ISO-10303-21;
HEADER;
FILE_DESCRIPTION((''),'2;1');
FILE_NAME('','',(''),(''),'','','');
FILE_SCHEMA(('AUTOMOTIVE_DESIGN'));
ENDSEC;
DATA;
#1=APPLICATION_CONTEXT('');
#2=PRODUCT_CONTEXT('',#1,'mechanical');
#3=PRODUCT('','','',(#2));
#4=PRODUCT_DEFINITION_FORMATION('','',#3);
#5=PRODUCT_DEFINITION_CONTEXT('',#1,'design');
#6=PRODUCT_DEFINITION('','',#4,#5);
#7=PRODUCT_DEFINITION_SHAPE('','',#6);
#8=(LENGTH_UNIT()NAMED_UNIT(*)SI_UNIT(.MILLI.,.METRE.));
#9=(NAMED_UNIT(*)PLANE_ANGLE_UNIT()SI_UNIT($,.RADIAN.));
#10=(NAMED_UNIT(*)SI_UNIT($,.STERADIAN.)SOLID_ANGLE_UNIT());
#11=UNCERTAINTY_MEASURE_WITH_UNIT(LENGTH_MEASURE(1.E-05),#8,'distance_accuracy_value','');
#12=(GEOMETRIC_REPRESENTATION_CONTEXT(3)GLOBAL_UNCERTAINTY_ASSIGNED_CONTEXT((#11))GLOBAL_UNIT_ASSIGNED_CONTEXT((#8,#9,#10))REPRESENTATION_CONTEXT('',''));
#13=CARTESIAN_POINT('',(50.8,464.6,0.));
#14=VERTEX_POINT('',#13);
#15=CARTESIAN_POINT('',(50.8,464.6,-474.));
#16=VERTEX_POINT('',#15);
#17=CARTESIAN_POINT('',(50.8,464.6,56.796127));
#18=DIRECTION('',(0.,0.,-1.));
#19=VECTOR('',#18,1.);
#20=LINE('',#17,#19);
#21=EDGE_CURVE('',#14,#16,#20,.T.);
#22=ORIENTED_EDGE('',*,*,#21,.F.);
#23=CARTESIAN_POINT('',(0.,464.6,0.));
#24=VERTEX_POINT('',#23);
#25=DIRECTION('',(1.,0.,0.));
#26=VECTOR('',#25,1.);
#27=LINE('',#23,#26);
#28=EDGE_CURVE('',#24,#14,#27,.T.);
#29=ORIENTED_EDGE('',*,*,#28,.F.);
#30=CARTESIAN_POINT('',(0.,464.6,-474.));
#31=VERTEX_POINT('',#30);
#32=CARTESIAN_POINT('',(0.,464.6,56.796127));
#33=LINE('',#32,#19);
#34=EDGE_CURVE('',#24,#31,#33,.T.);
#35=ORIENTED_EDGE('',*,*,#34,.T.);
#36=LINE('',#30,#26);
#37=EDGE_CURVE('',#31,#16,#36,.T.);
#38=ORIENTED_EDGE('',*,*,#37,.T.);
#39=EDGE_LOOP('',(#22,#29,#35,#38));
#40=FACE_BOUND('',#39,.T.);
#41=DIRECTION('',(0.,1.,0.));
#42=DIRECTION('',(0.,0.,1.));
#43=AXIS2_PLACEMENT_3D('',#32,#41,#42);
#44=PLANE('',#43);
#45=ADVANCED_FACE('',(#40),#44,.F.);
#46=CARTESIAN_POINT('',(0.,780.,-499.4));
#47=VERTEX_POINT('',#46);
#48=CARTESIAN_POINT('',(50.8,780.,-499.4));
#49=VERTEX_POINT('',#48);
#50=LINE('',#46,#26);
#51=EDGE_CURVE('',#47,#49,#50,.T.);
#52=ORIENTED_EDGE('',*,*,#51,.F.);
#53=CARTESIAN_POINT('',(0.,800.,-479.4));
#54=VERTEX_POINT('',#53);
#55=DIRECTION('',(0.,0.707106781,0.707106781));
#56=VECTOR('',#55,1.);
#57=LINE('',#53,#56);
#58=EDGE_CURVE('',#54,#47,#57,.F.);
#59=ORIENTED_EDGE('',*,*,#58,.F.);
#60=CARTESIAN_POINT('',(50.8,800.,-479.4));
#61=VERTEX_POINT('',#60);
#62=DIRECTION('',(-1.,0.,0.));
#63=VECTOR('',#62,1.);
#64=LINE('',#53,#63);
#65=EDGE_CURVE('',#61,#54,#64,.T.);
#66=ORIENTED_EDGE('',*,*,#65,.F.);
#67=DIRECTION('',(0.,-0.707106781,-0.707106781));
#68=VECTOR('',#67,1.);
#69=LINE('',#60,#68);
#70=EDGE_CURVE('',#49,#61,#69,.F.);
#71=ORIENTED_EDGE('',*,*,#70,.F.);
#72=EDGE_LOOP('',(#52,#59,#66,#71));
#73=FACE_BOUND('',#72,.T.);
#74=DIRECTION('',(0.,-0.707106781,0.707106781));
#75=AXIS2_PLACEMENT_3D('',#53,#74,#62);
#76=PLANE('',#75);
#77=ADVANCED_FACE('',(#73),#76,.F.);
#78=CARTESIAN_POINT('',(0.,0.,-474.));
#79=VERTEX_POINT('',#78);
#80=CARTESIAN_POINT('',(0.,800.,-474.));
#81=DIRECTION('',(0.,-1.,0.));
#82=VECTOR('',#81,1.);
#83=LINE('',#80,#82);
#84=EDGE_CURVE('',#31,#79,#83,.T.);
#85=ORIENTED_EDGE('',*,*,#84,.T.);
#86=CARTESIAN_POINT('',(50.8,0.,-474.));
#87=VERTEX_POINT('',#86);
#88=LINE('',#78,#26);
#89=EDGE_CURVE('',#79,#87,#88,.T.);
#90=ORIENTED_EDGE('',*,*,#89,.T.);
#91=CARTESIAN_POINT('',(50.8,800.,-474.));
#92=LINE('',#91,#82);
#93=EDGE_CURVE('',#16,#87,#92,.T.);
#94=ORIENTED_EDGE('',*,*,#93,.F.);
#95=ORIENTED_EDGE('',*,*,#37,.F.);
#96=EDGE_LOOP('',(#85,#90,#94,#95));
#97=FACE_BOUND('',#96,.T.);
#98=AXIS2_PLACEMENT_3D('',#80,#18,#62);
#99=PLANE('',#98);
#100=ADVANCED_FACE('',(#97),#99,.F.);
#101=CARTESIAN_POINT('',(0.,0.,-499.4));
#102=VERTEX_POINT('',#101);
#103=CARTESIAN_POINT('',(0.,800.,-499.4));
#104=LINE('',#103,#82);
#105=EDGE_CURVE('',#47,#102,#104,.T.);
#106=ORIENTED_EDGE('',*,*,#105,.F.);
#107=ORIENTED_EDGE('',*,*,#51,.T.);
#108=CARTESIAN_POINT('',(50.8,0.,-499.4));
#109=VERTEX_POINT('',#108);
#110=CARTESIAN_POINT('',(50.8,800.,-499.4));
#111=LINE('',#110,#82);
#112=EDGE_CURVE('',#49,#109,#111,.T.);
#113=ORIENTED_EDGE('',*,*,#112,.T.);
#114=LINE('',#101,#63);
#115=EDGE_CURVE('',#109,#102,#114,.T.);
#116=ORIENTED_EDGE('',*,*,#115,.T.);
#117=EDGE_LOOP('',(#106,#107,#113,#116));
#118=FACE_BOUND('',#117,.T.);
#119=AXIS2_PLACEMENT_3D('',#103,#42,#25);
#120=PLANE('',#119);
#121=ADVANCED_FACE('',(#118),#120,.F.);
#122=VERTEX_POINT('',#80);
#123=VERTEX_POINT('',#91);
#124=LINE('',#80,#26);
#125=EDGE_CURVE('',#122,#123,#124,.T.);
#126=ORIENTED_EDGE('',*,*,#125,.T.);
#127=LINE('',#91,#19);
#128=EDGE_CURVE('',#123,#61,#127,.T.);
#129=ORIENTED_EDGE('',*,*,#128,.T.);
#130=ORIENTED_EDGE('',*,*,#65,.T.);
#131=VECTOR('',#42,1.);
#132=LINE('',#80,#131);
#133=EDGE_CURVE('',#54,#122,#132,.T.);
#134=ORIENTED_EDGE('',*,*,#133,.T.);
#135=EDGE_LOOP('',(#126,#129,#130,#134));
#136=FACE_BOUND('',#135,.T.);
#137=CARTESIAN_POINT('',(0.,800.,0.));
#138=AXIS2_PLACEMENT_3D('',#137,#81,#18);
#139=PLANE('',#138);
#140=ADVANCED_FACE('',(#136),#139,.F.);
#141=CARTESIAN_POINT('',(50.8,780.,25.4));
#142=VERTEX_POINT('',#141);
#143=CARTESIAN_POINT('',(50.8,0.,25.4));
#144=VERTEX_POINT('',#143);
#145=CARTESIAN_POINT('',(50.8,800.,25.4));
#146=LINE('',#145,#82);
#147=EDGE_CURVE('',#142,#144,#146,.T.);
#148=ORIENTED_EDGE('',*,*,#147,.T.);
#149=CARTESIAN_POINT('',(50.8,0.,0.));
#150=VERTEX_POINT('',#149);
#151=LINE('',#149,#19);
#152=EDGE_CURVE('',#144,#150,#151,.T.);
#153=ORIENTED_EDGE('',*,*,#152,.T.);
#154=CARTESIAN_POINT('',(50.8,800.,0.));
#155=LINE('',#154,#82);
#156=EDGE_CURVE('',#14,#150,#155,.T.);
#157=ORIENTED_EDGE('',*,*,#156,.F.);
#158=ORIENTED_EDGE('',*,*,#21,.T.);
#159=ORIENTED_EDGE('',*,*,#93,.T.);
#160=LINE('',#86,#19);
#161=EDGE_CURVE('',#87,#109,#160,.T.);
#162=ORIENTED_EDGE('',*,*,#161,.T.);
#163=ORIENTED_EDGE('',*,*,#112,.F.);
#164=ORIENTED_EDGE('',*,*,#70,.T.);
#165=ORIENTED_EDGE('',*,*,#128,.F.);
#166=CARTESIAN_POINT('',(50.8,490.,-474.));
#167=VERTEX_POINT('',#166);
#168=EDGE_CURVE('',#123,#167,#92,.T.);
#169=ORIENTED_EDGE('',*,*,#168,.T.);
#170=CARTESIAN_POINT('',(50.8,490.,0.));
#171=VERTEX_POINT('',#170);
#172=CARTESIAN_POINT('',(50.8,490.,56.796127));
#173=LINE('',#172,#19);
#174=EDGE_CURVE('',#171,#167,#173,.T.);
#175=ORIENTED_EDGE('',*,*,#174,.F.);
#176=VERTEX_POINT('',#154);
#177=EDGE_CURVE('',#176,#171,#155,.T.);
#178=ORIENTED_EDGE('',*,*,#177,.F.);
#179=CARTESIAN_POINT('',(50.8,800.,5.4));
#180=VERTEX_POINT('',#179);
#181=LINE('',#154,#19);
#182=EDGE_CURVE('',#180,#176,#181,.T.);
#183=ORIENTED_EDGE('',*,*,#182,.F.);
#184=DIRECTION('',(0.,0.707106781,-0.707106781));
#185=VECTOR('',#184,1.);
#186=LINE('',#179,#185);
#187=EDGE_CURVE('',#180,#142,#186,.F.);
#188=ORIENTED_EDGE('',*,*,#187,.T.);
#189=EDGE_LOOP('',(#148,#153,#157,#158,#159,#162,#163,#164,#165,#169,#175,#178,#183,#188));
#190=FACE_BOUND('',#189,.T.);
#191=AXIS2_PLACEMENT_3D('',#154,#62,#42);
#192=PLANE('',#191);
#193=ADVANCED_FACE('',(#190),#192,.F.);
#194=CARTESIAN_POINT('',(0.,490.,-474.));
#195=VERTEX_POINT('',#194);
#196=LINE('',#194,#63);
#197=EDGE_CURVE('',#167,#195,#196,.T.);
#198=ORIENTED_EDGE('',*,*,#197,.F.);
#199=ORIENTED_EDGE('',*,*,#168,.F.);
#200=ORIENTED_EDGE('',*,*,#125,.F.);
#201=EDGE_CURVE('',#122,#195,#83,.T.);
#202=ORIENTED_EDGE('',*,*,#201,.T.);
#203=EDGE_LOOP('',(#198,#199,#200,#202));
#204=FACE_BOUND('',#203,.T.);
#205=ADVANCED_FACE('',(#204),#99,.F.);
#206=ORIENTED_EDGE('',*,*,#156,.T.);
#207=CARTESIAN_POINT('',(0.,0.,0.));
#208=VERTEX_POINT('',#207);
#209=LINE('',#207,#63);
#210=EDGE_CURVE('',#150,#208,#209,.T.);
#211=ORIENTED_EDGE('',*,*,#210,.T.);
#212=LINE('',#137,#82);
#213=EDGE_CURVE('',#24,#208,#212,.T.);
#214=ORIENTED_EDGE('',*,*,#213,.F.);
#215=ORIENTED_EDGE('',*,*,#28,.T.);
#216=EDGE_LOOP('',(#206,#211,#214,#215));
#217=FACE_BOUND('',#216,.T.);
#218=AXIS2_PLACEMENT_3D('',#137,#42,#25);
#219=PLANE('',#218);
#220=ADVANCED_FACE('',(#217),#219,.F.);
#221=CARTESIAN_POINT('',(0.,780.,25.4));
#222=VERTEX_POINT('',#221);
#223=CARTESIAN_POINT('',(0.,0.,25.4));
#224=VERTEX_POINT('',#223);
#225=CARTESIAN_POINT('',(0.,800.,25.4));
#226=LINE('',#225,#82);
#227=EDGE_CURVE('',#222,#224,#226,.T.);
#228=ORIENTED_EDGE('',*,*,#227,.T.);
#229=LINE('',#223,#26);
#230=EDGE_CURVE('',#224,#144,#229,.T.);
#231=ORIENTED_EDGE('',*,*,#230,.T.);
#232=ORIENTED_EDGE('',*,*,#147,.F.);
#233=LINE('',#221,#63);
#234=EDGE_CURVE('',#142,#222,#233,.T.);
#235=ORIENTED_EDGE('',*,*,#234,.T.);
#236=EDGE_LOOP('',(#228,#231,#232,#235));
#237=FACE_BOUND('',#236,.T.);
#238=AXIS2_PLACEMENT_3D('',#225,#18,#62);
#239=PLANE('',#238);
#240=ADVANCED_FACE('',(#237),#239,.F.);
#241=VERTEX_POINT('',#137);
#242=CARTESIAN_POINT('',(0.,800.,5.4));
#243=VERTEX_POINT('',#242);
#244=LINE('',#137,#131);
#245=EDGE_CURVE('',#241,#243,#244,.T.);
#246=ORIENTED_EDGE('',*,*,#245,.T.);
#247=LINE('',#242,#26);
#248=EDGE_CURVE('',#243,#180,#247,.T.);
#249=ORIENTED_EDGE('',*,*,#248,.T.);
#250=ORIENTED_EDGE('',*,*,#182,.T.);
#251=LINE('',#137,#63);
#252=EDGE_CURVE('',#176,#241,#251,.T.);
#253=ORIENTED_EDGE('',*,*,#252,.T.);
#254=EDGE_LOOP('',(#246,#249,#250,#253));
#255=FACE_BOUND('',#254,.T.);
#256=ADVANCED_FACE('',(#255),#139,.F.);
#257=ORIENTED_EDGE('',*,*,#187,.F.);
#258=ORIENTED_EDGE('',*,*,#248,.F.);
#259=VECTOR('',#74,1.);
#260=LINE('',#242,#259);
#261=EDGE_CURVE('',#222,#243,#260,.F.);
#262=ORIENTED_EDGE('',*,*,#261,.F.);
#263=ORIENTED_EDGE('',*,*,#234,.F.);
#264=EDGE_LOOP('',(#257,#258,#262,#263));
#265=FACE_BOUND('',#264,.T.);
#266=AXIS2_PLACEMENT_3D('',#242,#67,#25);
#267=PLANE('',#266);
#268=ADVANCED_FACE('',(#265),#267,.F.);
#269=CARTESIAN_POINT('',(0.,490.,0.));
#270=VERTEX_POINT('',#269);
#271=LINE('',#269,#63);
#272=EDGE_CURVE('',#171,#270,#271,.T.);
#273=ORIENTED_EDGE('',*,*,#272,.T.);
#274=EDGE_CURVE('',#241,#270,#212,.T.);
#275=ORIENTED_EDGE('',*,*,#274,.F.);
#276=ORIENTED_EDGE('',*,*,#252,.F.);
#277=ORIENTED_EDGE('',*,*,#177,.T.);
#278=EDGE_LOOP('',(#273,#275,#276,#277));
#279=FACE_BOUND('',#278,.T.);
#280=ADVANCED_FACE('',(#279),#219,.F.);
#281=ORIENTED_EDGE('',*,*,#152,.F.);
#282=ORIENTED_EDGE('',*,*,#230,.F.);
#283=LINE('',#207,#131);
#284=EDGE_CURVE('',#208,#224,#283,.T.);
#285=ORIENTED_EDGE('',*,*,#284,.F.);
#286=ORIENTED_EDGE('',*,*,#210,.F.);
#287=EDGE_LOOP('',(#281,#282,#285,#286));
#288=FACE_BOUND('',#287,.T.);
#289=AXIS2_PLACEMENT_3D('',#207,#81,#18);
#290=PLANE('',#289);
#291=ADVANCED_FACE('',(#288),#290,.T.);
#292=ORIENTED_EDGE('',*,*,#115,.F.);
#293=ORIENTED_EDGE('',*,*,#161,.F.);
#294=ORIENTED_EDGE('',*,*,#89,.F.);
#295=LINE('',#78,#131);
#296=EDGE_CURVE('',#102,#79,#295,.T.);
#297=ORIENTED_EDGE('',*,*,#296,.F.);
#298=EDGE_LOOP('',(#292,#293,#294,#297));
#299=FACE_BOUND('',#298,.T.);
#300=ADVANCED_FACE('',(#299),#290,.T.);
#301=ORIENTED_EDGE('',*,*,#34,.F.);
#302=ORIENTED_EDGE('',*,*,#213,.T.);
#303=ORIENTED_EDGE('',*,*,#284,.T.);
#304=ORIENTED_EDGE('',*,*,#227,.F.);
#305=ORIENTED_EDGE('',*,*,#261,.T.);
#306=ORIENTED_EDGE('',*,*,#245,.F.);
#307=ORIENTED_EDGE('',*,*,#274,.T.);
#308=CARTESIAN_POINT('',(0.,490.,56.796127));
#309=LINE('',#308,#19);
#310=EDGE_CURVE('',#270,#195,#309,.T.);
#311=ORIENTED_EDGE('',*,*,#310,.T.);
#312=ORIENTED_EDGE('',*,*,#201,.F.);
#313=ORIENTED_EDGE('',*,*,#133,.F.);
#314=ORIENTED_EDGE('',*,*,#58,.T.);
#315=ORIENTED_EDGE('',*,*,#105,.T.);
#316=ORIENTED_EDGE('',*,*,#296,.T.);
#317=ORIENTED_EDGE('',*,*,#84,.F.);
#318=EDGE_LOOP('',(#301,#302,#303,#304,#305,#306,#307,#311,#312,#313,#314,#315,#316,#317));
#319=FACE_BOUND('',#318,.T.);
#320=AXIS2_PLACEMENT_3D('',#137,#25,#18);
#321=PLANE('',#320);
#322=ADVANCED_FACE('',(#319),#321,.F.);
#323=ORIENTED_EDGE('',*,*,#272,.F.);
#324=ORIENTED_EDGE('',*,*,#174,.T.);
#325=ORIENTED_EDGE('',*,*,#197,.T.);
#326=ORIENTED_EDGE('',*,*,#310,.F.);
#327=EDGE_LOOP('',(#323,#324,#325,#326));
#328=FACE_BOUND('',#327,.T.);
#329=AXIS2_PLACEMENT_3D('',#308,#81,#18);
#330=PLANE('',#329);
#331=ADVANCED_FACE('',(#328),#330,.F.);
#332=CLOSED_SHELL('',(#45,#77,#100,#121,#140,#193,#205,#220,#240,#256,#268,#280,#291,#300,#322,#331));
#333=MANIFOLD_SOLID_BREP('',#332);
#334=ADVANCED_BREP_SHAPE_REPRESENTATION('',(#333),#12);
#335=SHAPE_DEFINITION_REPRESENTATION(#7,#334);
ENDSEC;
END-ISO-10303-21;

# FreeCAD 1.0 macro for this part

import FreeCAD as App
import Part
import Sketcher
Q = App.Units.Quantity


def edges_at(feature, points):
    """Names of the edges that pass closest to the given points."""
    edges = feature.Shape.Edges
    near = lambda p: min(range(len(edges)), key=lambda i: edges[i].distToShape(Part.Vertex(*p))[0])
    return sorted({f"Edge{near(p) + 1}" for p in points})

doc = App.newDocument("Part")
body = doc.addObject("PartDesign::Body", "Body")

# Sketch on XZ plane
sketch1 = doc.addObject("Sketcher::SketchObject", "Sketch")
body.addObject(sketch1)
sketch1.AttachmentSupport = (doc.XZ_Plane, [""])
sketch1.MapMode = "FlatFace"
sketch1.addGeometry(Part.LineSegment(App.Vector(0, 0, 0), App.Vector(0, 25, 0)), False)
sketch1.addGeometry(Part.LineSegment(App.Vector(0, 25, 0), App.Vector(51, 25, 0)), False)
sketch1.addGeometry(Part.LineSegment(App.Vector(51, 25, 0), App.Vector(51, 0, 0)), False)
sketch1.addGeometry(Part.LineSegment(App.Vector(51, 0, 0), App.Vector(0, 0, 0)), False)
sketch1.addConstraint(Sketcher.Constraint("Coincident", 0, 2, 1, 1))
sketch1.addConstraint(Sketcher.Constraint("Coincident", 1, 2, 2, 1))
sketch1.addConstraint(Sketcher.Constraint("Coincident", 2, 2, 3, 1))
sketch1.addConstraint(Sketcher.Constraint("Coincident", 3, 2, 0, 1))
sketch1.addConstraint(Sketcher.Constraint("Vertical", 0))
sketch1.addConstraint(Sketcher.Constraint("Horizontal", 1))
sketch1.addConstraint(Sketcher.Constraint("Vertical", 2))
sketch1.addConstraint(Sketcher.Constraint("Horizontal", 3))
sketch1.addConstraint(Sketcher.Constraint("Coincident", 3, 2, -1, 1))
sketch1.addConstraint(Sketcher.Constraint("DistanceX", 1, 1, 1, 2, Q("50.8 mm")))
sketch1.addConstraint(Sketcher.Constraint("DistanceY", 0, 1, 0, 2, Q("25.4 mm")))
pad1 = doc.addObject("PartDesign::Pad", "Pad")
body.addObject(pad1)
pad1.Profile = sketch1
pad1.Length = 800
pad1.Reversed = True
body2 = doc.addObject("PartDesign::Body", "Body001")

# Sketch on XZ plane
sketch2 = doc.addObject("Sketcher::SketchObject", "Sketch001")
body2.addObject(sketch2)
sketch2.AttachmentSupport = (doc.getObject("XZ_Plane001"), [""])
sketch2.MapMode = "FlatFace"
sketch2.addGeometry(Part.LineSegment(App.Vector(0, -499, 0), App.Vector(0, -474, 0)), False)
sketch2.addGeometry(Part.LineSegment(App.Vector(0, -474, 0), App.Vector(51, -474, 0)), False)
sketch2.addGeometry(Part.LineSegment(App.Vector(51, -474, 0), App.Vector(51, -499, 0)), False)
sketch2.addGeometry(Part.LineSegment(App.Vector(51, -499, 0), App.Vector(0, -499, 0)), False)
sketch2.addConstraint(Sketcher.Constraint("Coincident", 0, 2, 1, 1))
sketch2.addConstraint(Sketcher.Constraint("Coincident", 1, 2, 2, 1))
sketch2.addConstraint(Sketcher.Constraint("Coincident", 2, 2, 3, 1))
sketch2.addConstraint(Sketcher.Constraint("Coincident", 3, 2, 0, 1))
sketch2.addConstraint(Sketcher.Constraint("Vertical", 0))
sketch2.addConstraint(Sketcher.Constraint("Horizontal", 1))
sketch2.addConstraint(Sketcher.Constraint("Vertical", 2))
sketch2.addConstraint(Sketcher.Constraint("Horizontal", 3))
sketch2.addConstraint(Sketcher.Constraint("PointOnObject", 0, 2, -2))
sketch2.addConstraint(Sketcher.Constraint("DistanceX", 1, 1, 1, 2, Q("50.8 mm")))
sketch2.addConstraint(Sketcher.Constraint("DistanceY", 0, 1, 0, 2, Q("25.4 mm")))
sketch2.addConstraint(Sketcher.Constraint("DistanceY", 0, 2, -1, 1, Q("474 mm")))
pad2 = doc.addObject("PartDesign::Pad", "Pad001")
body2.addObject(pad2)
pad2.Profile = sketch2
pad2.Length = 800
pad2.Reversed = True
body.AllowCompound = True
doc.recompute()

boolean = doc.addObject("PartDesign::Boolean", "Boolean")
body.addObject(boolean)
boolean.Type = "Fuse"
boolean.addObjects([body2])

# Sketch on XY plane
sketch3 = doc.addObject("Sketcher::SketchObject", "Sketch002")
body.addObject(sketch3)
sketch3.AttachmentSupport = (doc.XY_Plane, [""])
sketch3.MapMode = "FlatFace"
sketch3.AttachmentOffset = App.Placement(App.Vector(0, 0, -474), App.Rotation())
sketch3.addGeometry(Part.LineSegment(App.Vector(0, 490, 0), App.Vector(0, 465, 0)), False)
sketch3.addGeometry(Part.LineSegment(App.Vector(0, 465, 0), App.Vector(51, 465, 0)), False)
sketch3.addGeometry(Part.LineSegment(App.Vector(51, 465, 0), App.Vector(51, 490, 0)), False)
sketch3.addGeometry(Part.LineSegment(App.Vector(51, 490, 0), App.Vector(0, 490, 0)), False)
sketch3.addConstraint(Sketcher.Constraint("Coincident", 0, 2, 1, 1))
sketch3.addConstraint(Sketcher.Constraint("Coincident", 1, 2, 2, 1))
sketch3.addConstraint(Sketcher.Constraint("Coincident", 2, 2, 3, 1))
sketch3.addConstraint(Sketcher.Constraint("Coincident", 3, 2, 0, 1))
sketch3.addConstraint(Sketcher.Constraint("Vertical", 0))
sketch3.addConstraint(Sketcher.Constraint("Horizontal", 1))
sketch3.addConstraint(Sketcher.Constraint("Vertical", 2))
sketch3.addConstraint(Sketcher.Constraint("Horizontal", 3))
sketch3.addConstraint(Sketcher.Constraint("PointOnObject", 0, 2, -2))
sketch3.addConstraint(Sketcher.Constraint("DistanceX", 1, 1, 1, 2, Q("50.8 mm")))
sketch3.addConstraint(Sketcher.Constraint("DistanceY", 0, 2, 0, 1, Q("25.4 mm")))
sketch3.addConstraint(Sketcher.Constraint("DistanceY", -1, 1, 2, 2, Q("490 mm")))
pad3 = doc.addObject("PartDesign::Pad", "Pad002")
body.addObject(pad3)
pad3.Profile = sketch3
pad3.Length = 474
doc.recompute()

chamfer = doc.addObject("PartDesign::Chamfer", "Chamfer")
body.addObject(chamfer)
chamfer.Base = (pad3, edges_at(pad3, [(25.4, 800, 25.4), (25.4, 800, -499.4)]))
chamfer.Size = 20

doc.recompute()
